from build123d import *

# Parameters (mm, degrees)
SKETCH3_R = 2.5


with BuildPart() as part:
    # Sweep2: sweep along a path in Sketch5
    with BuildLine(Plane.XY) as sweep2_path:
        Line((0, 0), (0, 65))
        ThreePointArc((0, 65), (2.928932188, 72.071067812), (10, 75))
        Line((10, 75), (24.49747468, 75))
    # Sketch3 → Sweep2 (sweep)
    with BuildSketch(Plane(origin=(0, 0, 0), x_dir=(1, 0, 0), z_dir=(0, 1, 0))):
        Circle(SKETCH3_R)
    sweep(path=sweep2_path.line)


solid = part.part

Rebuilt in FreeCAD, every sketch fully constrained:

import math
import FreeCAD as App
import Part
import Sketcher
Q = App.Units.Quantity

doc = App.newDocument("Part")
body = doc.addObject("PartDesign::Body", "Body")

sketch1 = doc.addObject("Sketcher::SketchObject", "Sketch")
body.addObject(sketch1)
sketch1.AttachmentSupport = (doc.XZ_Plane, [""])
sketch1.MapMode = "FlatFace"
sketch1.addGeometry(Part.Circle(App.Vector(0, 0, 0), App.Vector(0, 0, 1), 2.5), False)
sketch1.addConstraint([
    Sketcher.Constraint("Coincident", 0, 3, -1, 1),
    Sketcher.Constraint("Diameter", 0, Q("5 mm")),
])

sketch2 = doc.addObject("Sketcher::SketchObject", "Sketch001")
body.addObject(sketch2)
sketch2.AttachmentSupport = (doc.XY_Plane, [""])
sketch2.MapMode = "FlatFace"
sketch2.addGeometry([
    Part.LineSegment(App.Vector(0, 0, 0), App.Vector(0, 65, 0)),
    Part.ArcOfCircle(Part.Circle(App.Vector(10, 65, 0), App.Vector(0, 0, 1), 10), math.radians(90), math.radians(180)),
    Part.LineSegment(App.Vector(10, 75, 0), App.Vector(24, 75, 0)),
], False)
sketch2.addConstraint([
    Sketcher.Constraint("Tangent", 0, 2, 1, 2),
    Sketcher.Constraint("Tangent", 1, 1, 2, 1),
    Sketcher.Constraint("Vertical", 0),
    Sketcher.Constraint("Horizontal", 2),
    Sketcher.Constraint("Coincident", 0, 1, -1, 1),
    Sketcher.Constraint("Radius", 1, Q("10 mm")),
    Sketcher.Constraint("DistanceY", 0, 1, 0, 2, Q("65 mm")),
    Sketcher.Constraint("DistanceX", 2, 1, 2, 2, Q("14.497475 mm")),
])
doc.recompute()

additivepipe = doc.addObject("PartDesign::AdditivePipe", "AdditivePipe")
body.addObject(additivepipe)
additivepipe.Profile = sketch1
additivepipe.Spine = (sketch2, ["Edge1", "Edge2", "Edge3"])

doc.recompute()
